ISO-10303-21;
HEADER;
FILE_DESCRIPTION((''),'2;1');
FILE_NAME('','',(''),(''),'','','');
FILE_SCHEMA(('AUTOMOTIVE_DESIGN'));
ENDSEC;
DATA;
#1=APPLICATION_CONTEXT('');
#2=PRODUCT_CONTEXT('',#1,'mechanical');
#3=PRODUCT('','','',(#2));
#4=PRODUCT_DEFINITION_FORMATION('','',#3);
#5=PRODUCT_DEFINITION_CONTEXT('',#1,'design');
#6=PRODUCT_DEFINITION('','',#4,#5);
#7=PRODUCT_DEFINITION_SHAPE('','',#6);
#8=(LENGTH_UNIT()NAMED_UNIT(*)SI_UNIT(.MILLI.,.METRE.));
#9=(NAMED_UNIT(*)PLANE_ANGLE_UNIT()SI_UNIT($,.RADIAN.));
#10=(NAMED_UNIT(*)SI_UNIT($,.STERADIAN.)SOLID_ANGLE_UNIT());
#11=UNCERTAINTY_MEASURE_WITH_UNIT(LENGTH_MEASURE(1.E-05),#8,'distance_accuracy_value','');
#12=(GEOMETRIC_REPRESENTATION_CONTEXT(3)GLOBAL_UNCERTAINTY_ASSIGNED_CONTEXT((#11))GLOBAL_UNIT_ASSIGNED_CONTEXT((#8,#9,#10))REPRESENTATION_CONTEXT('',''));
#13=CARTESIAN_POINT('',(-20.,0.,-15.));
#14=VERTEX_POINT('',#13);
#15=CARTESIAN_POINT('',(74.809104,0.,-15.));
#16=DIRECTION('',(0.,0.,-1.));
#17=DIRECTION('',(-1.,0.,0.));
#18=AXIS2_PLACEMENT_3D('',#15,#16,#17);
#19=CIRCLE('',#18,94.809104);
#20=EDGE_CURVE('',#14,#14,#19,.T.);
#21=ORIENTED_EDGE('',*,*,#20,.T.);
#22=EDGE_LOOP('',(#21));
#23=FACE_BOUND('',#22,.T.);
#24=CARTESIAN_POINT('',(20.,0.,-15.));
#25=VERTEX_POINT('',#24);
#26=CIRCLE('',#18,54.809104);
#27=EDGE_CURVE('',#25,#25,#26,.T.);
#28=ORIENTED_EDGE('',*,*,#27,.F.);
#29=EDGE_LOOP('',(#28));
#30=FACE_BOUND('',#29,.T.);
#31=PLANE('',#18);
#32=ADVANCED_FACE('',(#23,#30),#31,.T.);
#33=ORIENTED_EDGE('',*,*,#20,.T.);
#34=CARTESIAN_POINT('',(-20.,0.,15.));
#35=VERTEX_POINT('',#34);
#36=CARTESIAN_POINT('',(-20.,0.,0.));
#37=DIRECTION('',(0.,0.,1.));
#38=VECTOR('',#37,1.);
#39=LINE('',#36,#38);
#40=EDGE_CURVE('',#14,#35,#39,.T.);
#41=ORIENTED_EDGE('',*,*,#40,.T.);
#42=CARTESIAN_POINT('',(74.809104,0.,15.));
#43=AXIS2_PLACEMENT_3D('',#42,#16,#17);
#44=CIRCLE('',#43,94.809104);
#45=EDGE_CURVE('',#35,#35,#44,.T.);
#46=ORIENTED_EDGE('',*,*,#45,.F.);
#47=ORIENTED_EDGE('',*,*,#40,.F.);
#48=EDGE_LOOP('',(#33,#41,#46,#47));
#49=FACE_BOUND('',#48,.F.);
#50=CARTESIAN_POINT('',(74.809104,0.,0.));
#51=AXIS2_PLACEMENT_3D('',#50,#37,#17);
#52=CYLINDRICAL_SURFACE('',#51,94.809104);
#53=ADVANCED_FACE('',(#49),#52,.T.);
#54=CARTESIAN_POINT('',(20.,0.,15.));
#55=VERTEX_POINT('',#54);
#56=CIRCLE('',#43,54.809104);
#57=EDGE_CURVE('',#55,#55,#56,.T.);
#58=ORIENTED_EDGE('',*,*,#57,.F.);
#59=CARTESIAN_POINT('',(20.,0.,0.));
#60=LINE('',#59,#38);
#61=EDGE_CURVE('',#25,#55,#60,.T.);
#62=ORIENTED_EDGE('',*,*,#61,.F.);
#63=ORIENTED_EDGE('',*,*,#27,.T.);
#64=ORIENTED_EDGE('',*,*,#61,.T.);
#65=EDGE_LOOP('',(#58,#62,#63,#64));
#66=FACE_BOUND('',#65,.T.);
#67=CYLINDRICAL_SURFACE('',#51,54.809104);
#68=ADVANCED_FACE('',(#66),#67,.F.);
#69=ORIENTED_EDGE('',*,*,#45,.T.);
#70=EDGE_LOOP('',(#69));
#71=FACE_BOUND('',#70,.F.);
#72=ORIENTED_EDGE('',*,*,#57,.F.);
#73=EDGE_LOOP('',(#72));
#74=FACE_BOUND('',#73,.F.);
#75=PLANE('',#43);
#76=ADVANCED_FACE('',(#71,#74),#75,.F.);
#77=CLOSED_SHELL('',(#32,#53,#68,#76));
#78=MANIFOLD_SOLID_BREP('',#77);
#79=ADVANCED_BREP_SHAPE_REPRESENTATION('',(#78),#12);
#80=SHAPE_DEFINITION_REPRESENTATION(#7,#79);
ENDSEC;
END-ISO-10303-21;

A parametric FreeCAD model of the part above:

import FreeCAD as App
import Part
import Sketcher
from FreeCAD import Vector
Q = App.Units.Quantity


def add_polygon(sketch, points):
    """Adds a closed chain of lines whose ends are joined by coincident constraints."""
    first, n = sketch.GeometryCount, len(points)
    for a, b in zip(points, points[1:] + points[:1]):
        sketch.addGeometry(Part.LineSegment(App.Vector(*a, 0), App.Vector(*b, 0)), False)
    for i in range(n):
        sketch.addConstraint(Sketcher.Constraint("Coincident", first + i, 2, first + (i + 1) % n, 1))

doc = App.newDocument("Part")
body = doc.addObject("PartDesign::Body", "Body")

sketch1 = body.newObject("Sketcher::SketchObject", "Sketch")
sketch1.AttachmentSupport = (doc.getObject("XZ_Plane"), [""])
sketch1.MapMode = "FlatFace"
add_polygon(sketch1, [(-20, 15), (-20, -15), (20, -15), (20, 15)])
sketch1.addGeometry(Part.LineSegment(Vector(75, 15, 0), Vector(75, -15, 0)), True)
sketch1.addConstraint(Sketcher.Constraint("Vertical", 0))
sketch1.addConstraint(Sketcher.Constraint("Horizontal", 1))
sketch1.addConstraint(Sketcher.Constraint("Vertical", 2))
sketch1.addConstraint(Sketcher.Constraint("Horizontal", 3))
sketch1.addConstraint(Sketcher.Constraint("Vertical", 4))
sketch1.addConstraint(Sketcher.Constraint("Symmetric", 0, 2, 2, 2, -1, 1))
sketch1.addConstraint(Sketcher.Constraint("Horizontal", 3, 2, 4, 1))
sketch1.addConstraint(Sketcher.Constraint("Horizontal", 1, 2, 4, 2))
sketch1.addConstraint(Sketcher.Constraint("DistanceX", 1, 1, 1, 2, Q("40 mm")))
sketch1.addConstraint(Sketcher.Constraint("DistanceY", 0, 2, 0, 1, Q("30 mm")))
sketch1.addConstraint(Sketcher.Constraint("DistanceX", -1, 1, 4, 1, Q("74.809104 mm")))
revolution = body.newObject("PartDesign::Revolution", "Revolution")
revolution.Profile = sketch1
revolution.ReferenceAxis = (sketch1, ["Axis0"])
revolution.Angle = 360

doc.recompute()
